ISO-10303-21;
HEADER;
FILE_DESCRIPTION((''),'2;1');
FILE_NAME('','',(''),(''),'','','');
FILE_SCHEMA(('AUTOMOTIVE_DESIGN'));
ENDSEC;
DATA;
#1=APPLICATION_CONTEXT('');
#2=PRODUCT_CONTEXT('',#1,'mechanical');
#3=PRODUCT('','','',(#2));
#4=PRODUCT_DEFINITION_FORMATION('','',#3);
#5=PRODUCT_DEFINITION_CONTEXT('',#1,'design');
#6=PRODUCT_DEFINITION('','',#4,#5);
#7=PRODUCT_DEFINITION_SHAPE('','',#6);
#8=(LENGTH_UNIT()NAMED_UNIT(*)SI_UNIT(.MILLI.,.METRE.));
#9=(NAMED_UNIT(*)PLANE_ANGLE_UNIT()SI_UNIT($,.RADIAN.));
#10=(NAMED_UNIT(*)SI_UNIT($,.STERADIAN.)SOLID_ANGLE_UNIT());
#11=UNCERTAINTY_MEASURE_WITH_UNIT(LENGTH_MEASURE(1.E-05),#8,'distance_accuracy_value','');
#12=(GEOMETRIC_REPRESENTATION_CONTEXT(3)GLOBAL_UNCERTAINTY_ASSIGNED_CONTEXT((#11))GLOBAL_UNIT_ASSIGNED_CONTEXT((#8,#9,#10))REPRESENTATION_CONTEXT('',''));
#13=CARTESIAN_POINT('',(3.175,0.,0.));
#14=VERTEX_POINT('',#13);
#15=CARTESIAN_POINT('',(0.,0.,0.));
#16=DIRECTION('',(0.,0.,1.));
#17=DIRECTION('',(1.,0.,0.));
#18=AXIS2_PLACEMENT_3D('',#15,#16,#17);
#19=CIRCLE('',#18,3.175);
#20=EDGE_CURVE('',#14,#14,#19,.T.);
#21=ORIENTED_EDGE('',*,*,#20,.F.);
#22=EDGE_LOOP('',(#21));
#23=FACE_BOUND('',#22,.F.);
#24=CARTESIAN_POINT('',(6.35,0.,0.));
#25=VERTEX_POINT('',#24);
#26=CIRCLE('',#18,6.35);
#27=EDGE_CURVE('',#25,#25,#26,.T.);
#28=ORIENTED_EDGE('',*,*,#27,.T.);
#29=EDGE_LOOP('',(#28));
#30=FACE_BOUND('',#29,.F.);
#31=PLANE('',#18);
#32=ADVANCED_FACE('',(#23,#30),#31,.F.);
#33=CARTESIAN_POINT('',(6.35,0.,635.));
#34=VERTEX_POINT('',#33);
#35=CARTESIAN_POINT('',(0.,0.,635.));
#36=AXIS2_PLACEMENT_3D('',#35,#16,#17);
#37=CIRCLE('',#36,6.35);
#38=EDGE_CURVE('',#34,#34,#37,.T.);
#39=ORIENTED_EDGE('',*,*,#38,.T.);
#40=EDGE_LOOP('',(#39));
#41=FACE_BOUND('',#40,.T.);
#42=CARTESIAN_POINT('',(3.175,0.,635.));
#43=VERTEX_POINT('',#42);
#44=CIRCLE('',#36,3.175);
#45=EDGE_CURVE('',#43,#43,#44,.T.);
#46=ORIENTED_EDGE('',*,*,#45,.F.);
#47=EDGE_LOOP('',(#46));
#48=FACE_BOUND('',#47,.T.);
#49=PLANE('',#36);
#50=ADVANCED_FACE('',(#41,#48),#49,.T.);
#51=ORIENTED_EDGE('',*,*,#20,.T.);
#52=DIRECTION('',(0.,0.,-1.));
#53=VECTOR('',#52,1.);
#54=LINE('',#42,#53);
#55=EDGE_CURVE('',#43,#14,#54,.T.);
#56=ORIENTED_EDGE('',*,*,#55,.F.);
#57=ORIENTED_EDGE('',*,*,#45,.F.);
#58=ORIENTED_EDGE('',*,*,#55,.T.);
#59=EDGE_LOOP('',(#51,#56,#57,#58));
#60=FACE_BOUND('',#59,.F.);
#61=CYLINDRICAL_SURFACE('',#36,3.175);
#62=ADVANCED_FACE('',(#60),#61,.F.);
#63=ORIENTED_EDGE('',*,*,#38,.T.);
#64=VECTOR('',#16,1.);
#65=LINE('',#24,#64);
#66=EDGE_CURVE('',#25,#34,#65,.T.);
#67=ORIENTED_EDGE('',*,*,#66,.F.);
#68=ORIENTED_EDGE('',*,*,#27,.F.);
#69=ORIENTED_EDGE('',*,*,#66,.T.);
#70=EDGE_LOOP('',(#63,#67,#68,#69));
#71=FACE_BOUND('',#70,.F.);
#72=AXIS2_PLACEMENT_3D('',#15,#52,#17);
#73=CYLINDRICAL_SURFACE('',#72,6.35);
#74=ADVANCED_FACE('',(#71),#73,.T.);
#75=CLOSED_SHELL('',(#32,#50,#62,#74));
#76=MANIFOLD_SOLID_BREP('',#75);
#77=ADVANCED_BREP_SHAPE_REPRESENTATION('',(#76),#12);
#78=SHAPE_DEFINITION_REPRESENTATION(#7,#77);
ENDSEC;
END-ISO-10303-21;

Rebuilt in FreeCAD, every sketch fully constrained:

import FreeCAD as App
import Part
import Sketcher
from FreeCAD import Vector
Q = App.Units.Quantity

doc = App.newDocument("Part")
body = doc.addObject("PartDesign::Body", "Body")

# Sketch on XY plane
sketch1 = body.newObject("Sketcher::SketchObject", "Sketch")
sketch1.AttachmentSupport = (doc.getObject("XY_Plane"), [""])
sketch1.MapMode = "FlatFace"
sketch1.addGeometry(Part.Circle(Vector(0, 0, 0), Vector(0, 0, 1), 6.35), False)
sketch1.addConstraint([
    Sketcher.Constraint("Coincident", 0, 3, -1, 1),
    Sketcher.Constraint("Diameter", 0, Q("0.5 in")),
])
pad1 = body.newObject("PartDesign::Pad", "Pad")
pad1.Profile = sketch1
pad1.Length = Q("25 in")

# Sketch on XY plane
sketch2 = body.newObject("Sketcher::SketchObject", "Sketch001")
sketch2.AttachmentSupport = (doc.getObject("XY_Plane"), [""])
sketch2.MapMode = "FlatFace"
sketch2.AttachmentOffset = App.Placement(Vector(0, 0, 25 * 25.4), App.Rotation())
sketch2.addGeometry(Part.Circle(Vector(0, 0, 0), Vector(0, 0, 1), 3.175), False)
sketch2.addConstraint([
    Sketcher.Constraint("Coincident", 0, 3, -1, 1),
    Sketcher.Constraint("Diameter", 0, Q("0.25 in")),
])
pocket1 = body.newObject("PartDesign::Pocket", "Pocket")
pocket1.Profile = sketch2
pocket1.Length = Q("25 in")

doc.recompute()
